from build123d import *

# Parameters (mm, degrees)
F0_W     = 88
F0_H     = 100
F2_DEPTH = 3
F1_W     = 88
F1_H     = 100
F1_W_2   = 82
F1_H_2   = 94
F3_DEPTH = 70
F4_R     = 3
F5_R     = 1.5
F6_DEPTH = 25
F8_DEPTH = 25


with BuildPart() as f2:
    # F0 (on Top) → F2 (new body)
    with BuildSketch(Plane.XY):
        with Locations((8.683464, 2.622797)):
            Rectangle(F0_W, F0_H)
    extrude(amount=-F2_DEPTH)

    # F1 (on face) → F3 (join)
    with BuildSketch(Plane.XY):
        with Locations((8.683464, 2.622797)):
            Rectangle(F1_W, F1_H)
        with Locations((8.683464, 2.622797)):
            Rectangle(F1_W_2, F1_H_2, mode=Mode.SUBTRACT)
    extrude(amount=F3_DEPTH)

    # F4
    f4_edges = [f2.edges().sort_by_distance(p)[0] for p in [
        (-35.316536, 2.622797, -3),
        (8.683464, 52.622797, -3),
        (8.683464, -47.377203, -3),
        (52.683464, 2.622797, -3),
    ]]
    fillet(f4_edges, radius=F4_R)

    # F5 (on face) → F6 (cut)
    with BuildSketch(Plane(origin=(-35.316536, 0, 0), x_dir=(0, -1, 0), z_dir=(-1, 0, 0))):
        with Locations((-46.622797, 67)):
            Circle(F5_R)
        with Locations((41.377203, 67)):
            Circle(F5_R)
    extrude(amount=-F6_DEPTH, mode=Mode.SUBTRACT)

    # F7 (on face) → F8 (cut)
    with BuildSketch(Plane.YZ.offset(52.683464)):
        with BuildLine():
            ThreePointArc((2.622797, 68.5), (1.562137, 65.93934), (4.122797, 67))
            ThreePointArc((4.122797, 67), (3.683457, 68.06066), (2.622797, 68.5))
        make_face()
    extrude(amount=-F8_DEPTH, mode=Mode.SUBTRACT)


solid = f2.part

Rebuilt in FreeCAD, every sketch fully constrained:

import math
import FreeCAD as App
import Part
import Sketcher


def edges_at(feature, points):
    """Names of the edges that pass closest to the given points."""
    edges = feature.Shape.Edges
    near = lambda p: min(range(len(edges)), key=lambda i: edges[i].distToShape(Part.Vertex(*p))[0])
    return sorted({f"Edge{near(p) + 1}" for p in points})


def add_polygon(sketch, points):
    """Adds a closed chain of lines whose ends are joined by coincident constraints."""
    first, n = sketch.GeometryCount, len(points)
    for a, b in zip(points, points[1:] + points[:1]):
        sketch.addGeometry(Part.LineSegment(App.Vector(*a, 0), App.Vector(*b, 0)), False)
    for i in range(n):
        sketch.addConstraint(Sketcher.Constraint("Coincident", first + i, 2, first + (i + 1) % n, 1))

doc = App.newDocument("Part")
body = doc.addObject("PartDesign::Body", "Body")

# Sketch on XY plane
sketch1 = body.newObject("Sketcher::SketchObject", "Sketch")
sketch1.AttachmentSupport = (doc.getObject("XY_Plane"), [""])
sketch1.MapMode = "FlatFace"
add_polygon(sketch1, [(-35, 53), (-35, -47), (53, -47), (53, 53)])  # lines 0-3
sketch1.addConstraint([
    Sketcher.Constraint("Vertical", 0),
    Sketcher.Constraint("Horizontal", 1),
    Sketcher.Constraint("Vertical", 2),
    Sketcher.Constraint("Horizontal", 3),
    Sketcher.Constraint("DistanceX", 1, 1, 1, 2, 88.0),
    Sketcher.Constraint("DistanceY", 0, 2, 0, 1, 100.0),
    Sketcher.Constraint("DistanceX", 0, 2, -1, 1, 35.316536),
    Sketcher.Constraint("DistanceY", 0, 2, -1, 1, 47.377203),
])
pad1 = body.newObject("PartDesign::Pad", "Pad")
pad1.Profile = sketch1
pad1.Length = 3
pad1.Reversed = True

# Sketch on XY plane
sketch2 = body.newObject("Sketcher::SketchObject", "Sketch001")
sketch2.AttachmentSupport = (doc.getObject("XY_Plane"), [""])
sketch2.MapMode = "FlatFace"
add_polygon(sketch2, [(-35, 53), (-35, -47), (53, -47), (53, 53)])  # lines 0-3
add_polygon(sketch2, [(50, -44), (-32, -44), (-32, 50), (50, 50)])  # lines 4-7
sketch2.addConstraint([
    Sketcher.Constraint("Vertical", 0),
    Sketcher.Constraint("Horizontal", 1),
    Sketcher.Constraint("Vertical", 2),
    Sketcher.Constraint("Horizontal", 3),
    Sketcher.Constraint("Horizontal", 4),
    Sketcher.Constraint("Vertical", 5),
    Sketcher.Constraint("Horizontal", 6),
    Sketcher.Constraint("Vertical", 7),
    Sketcher.Constraint("DistanceX", 1, 1, 1, 2, 88.0),
    Sketcher.Constraint("DistanceX", 4, 2, 4, 1, 82.0),
    Sketcher.Constraint("DistanceY", 0, 2, 0, 1, 100.0),
    Sketcher.Constraint("DistanceY", 5, 1, 5, 2, 94.0),
    Sketcher.Constraint("DistanceX", 0, 2, 4, 2, 3.0),
    Sketcher.Constraint("DistanceY", 0, 2, 4, 2, 3.0),
    Sketcher.Constraint("DistanceX", 0, 2, -1, 1, 35.316536),
    Sketcher.Constraint("DistanceY", 0, 2, -1, 1, 47.377203),
])
pad2 = body.newObject("PartDesign::Pad", "Pad001")
pad2.Profile = sketch2
pad2.Length = 70
doc.recompute()

fillet = body.newObject("PartDesign::Fillet", "Fillet")
fillet.Base = (pad2, edges_at(pad2, [
    (-35.317, 2.623, -3),
    (8.683, 52.623, -3),
    (8.683, -47.377, -3),
    (52.683, 2.623, -3),
]))
fillet.Radius = 3

# Sketch on YZ plane
sketch3 = body.newObject("Sketcher::SketchObject", "Sketch002")
sketch3.AttachmentSupport = (doc.getObject("YZ_Plane"), [""])
sketch3.MapMode = "FlatFace"
sketch3.AttachmentOffset = App.Placement(App.Vector(0, 0, -35.316536), App.Rotation())
sketch3.addGeometry([
    Part.Circle(App.Vector(46.6, 67, 0), App.Vector(0, 0, 1), 1.5),
    Part.Circle(App.Vector(-41.4, 67, 0), App.Vector(0, 0, 1), 1.5),
], False)
sketch3.addConstraint([
    Sketcher.Constraint("Equal", 0, 1),
    Sketcher.Constraint("Horizontal", 0, 3, 1, 3),
    Sketcher.Constraint("Diameter", 0, 3.0),
    Sketcher.Constraint("DistanceY", -1, 1, 0, 3, 67.0),
    Sketcher.Constraint("DistanceX", 1, 3, 0, 3, 88.0),
    Sketcher.Constraint("DistanceX", -1, 1, 0, 3, 46.622797),
])
pocket1 = body.newObject("PartDesign::Pocket", "Pocket")
pocket1.Profile = sketch3
pocket1.Length = 25
pocket1.Reversed = True

# Sketch on YZ plane
sketch4 = body.newObject("Sketcher::SketchObject", "Sketch003")
sketch4.AttachmentSupport = (doc.getObject("YZ_Plane"), [""])
sketch4.MapMode = "FlatFace"
sketch4.AttachmentOffset = App.Placement(App.Vector(0, 0, 52.683464), App.Rotation())
sketch4.addGeometry([
    Part.ArcOfCircle(Part.Circle(App.Vector(2.6, 67, 0), App.Vector(0, 0, 1), 1.5), math.radians(90), math.radians(360)),
    Part.ArcOfCircle(Part.Circle(App.Vector(2.6, 67, 0), App.Vector(0, 0, 1), 1.5), math.radians(0), math.radians(90)),
], False)
sketch4.addConstraint([
    Sketcher.Constraint("Tangent", 0, 1, 1, 2),
    Sketcher.Constraint("Coincident", 1, 1, 0, 2),
    Sketcher.Constraint("Horizontal", 0, 3, 1, 1),
    Sketcher.Constraint("Vertical", 1, 3, 0, 1),
    Sketcher.Constraint("Radius", 0, 1.5),
    Sketcher.Constraint("DistanceY", -1, 1, 0, 3, 67.0),
    Sketcher.Constraint("DistanceX", -1, 1, 0, 3, 2.622797),
])
pocket2 = body.newObject("PartDesign::Pocket", "Pocket001")
pocket2.Profile = sketch4
pocket2.Length = 25

doc.recompute()
